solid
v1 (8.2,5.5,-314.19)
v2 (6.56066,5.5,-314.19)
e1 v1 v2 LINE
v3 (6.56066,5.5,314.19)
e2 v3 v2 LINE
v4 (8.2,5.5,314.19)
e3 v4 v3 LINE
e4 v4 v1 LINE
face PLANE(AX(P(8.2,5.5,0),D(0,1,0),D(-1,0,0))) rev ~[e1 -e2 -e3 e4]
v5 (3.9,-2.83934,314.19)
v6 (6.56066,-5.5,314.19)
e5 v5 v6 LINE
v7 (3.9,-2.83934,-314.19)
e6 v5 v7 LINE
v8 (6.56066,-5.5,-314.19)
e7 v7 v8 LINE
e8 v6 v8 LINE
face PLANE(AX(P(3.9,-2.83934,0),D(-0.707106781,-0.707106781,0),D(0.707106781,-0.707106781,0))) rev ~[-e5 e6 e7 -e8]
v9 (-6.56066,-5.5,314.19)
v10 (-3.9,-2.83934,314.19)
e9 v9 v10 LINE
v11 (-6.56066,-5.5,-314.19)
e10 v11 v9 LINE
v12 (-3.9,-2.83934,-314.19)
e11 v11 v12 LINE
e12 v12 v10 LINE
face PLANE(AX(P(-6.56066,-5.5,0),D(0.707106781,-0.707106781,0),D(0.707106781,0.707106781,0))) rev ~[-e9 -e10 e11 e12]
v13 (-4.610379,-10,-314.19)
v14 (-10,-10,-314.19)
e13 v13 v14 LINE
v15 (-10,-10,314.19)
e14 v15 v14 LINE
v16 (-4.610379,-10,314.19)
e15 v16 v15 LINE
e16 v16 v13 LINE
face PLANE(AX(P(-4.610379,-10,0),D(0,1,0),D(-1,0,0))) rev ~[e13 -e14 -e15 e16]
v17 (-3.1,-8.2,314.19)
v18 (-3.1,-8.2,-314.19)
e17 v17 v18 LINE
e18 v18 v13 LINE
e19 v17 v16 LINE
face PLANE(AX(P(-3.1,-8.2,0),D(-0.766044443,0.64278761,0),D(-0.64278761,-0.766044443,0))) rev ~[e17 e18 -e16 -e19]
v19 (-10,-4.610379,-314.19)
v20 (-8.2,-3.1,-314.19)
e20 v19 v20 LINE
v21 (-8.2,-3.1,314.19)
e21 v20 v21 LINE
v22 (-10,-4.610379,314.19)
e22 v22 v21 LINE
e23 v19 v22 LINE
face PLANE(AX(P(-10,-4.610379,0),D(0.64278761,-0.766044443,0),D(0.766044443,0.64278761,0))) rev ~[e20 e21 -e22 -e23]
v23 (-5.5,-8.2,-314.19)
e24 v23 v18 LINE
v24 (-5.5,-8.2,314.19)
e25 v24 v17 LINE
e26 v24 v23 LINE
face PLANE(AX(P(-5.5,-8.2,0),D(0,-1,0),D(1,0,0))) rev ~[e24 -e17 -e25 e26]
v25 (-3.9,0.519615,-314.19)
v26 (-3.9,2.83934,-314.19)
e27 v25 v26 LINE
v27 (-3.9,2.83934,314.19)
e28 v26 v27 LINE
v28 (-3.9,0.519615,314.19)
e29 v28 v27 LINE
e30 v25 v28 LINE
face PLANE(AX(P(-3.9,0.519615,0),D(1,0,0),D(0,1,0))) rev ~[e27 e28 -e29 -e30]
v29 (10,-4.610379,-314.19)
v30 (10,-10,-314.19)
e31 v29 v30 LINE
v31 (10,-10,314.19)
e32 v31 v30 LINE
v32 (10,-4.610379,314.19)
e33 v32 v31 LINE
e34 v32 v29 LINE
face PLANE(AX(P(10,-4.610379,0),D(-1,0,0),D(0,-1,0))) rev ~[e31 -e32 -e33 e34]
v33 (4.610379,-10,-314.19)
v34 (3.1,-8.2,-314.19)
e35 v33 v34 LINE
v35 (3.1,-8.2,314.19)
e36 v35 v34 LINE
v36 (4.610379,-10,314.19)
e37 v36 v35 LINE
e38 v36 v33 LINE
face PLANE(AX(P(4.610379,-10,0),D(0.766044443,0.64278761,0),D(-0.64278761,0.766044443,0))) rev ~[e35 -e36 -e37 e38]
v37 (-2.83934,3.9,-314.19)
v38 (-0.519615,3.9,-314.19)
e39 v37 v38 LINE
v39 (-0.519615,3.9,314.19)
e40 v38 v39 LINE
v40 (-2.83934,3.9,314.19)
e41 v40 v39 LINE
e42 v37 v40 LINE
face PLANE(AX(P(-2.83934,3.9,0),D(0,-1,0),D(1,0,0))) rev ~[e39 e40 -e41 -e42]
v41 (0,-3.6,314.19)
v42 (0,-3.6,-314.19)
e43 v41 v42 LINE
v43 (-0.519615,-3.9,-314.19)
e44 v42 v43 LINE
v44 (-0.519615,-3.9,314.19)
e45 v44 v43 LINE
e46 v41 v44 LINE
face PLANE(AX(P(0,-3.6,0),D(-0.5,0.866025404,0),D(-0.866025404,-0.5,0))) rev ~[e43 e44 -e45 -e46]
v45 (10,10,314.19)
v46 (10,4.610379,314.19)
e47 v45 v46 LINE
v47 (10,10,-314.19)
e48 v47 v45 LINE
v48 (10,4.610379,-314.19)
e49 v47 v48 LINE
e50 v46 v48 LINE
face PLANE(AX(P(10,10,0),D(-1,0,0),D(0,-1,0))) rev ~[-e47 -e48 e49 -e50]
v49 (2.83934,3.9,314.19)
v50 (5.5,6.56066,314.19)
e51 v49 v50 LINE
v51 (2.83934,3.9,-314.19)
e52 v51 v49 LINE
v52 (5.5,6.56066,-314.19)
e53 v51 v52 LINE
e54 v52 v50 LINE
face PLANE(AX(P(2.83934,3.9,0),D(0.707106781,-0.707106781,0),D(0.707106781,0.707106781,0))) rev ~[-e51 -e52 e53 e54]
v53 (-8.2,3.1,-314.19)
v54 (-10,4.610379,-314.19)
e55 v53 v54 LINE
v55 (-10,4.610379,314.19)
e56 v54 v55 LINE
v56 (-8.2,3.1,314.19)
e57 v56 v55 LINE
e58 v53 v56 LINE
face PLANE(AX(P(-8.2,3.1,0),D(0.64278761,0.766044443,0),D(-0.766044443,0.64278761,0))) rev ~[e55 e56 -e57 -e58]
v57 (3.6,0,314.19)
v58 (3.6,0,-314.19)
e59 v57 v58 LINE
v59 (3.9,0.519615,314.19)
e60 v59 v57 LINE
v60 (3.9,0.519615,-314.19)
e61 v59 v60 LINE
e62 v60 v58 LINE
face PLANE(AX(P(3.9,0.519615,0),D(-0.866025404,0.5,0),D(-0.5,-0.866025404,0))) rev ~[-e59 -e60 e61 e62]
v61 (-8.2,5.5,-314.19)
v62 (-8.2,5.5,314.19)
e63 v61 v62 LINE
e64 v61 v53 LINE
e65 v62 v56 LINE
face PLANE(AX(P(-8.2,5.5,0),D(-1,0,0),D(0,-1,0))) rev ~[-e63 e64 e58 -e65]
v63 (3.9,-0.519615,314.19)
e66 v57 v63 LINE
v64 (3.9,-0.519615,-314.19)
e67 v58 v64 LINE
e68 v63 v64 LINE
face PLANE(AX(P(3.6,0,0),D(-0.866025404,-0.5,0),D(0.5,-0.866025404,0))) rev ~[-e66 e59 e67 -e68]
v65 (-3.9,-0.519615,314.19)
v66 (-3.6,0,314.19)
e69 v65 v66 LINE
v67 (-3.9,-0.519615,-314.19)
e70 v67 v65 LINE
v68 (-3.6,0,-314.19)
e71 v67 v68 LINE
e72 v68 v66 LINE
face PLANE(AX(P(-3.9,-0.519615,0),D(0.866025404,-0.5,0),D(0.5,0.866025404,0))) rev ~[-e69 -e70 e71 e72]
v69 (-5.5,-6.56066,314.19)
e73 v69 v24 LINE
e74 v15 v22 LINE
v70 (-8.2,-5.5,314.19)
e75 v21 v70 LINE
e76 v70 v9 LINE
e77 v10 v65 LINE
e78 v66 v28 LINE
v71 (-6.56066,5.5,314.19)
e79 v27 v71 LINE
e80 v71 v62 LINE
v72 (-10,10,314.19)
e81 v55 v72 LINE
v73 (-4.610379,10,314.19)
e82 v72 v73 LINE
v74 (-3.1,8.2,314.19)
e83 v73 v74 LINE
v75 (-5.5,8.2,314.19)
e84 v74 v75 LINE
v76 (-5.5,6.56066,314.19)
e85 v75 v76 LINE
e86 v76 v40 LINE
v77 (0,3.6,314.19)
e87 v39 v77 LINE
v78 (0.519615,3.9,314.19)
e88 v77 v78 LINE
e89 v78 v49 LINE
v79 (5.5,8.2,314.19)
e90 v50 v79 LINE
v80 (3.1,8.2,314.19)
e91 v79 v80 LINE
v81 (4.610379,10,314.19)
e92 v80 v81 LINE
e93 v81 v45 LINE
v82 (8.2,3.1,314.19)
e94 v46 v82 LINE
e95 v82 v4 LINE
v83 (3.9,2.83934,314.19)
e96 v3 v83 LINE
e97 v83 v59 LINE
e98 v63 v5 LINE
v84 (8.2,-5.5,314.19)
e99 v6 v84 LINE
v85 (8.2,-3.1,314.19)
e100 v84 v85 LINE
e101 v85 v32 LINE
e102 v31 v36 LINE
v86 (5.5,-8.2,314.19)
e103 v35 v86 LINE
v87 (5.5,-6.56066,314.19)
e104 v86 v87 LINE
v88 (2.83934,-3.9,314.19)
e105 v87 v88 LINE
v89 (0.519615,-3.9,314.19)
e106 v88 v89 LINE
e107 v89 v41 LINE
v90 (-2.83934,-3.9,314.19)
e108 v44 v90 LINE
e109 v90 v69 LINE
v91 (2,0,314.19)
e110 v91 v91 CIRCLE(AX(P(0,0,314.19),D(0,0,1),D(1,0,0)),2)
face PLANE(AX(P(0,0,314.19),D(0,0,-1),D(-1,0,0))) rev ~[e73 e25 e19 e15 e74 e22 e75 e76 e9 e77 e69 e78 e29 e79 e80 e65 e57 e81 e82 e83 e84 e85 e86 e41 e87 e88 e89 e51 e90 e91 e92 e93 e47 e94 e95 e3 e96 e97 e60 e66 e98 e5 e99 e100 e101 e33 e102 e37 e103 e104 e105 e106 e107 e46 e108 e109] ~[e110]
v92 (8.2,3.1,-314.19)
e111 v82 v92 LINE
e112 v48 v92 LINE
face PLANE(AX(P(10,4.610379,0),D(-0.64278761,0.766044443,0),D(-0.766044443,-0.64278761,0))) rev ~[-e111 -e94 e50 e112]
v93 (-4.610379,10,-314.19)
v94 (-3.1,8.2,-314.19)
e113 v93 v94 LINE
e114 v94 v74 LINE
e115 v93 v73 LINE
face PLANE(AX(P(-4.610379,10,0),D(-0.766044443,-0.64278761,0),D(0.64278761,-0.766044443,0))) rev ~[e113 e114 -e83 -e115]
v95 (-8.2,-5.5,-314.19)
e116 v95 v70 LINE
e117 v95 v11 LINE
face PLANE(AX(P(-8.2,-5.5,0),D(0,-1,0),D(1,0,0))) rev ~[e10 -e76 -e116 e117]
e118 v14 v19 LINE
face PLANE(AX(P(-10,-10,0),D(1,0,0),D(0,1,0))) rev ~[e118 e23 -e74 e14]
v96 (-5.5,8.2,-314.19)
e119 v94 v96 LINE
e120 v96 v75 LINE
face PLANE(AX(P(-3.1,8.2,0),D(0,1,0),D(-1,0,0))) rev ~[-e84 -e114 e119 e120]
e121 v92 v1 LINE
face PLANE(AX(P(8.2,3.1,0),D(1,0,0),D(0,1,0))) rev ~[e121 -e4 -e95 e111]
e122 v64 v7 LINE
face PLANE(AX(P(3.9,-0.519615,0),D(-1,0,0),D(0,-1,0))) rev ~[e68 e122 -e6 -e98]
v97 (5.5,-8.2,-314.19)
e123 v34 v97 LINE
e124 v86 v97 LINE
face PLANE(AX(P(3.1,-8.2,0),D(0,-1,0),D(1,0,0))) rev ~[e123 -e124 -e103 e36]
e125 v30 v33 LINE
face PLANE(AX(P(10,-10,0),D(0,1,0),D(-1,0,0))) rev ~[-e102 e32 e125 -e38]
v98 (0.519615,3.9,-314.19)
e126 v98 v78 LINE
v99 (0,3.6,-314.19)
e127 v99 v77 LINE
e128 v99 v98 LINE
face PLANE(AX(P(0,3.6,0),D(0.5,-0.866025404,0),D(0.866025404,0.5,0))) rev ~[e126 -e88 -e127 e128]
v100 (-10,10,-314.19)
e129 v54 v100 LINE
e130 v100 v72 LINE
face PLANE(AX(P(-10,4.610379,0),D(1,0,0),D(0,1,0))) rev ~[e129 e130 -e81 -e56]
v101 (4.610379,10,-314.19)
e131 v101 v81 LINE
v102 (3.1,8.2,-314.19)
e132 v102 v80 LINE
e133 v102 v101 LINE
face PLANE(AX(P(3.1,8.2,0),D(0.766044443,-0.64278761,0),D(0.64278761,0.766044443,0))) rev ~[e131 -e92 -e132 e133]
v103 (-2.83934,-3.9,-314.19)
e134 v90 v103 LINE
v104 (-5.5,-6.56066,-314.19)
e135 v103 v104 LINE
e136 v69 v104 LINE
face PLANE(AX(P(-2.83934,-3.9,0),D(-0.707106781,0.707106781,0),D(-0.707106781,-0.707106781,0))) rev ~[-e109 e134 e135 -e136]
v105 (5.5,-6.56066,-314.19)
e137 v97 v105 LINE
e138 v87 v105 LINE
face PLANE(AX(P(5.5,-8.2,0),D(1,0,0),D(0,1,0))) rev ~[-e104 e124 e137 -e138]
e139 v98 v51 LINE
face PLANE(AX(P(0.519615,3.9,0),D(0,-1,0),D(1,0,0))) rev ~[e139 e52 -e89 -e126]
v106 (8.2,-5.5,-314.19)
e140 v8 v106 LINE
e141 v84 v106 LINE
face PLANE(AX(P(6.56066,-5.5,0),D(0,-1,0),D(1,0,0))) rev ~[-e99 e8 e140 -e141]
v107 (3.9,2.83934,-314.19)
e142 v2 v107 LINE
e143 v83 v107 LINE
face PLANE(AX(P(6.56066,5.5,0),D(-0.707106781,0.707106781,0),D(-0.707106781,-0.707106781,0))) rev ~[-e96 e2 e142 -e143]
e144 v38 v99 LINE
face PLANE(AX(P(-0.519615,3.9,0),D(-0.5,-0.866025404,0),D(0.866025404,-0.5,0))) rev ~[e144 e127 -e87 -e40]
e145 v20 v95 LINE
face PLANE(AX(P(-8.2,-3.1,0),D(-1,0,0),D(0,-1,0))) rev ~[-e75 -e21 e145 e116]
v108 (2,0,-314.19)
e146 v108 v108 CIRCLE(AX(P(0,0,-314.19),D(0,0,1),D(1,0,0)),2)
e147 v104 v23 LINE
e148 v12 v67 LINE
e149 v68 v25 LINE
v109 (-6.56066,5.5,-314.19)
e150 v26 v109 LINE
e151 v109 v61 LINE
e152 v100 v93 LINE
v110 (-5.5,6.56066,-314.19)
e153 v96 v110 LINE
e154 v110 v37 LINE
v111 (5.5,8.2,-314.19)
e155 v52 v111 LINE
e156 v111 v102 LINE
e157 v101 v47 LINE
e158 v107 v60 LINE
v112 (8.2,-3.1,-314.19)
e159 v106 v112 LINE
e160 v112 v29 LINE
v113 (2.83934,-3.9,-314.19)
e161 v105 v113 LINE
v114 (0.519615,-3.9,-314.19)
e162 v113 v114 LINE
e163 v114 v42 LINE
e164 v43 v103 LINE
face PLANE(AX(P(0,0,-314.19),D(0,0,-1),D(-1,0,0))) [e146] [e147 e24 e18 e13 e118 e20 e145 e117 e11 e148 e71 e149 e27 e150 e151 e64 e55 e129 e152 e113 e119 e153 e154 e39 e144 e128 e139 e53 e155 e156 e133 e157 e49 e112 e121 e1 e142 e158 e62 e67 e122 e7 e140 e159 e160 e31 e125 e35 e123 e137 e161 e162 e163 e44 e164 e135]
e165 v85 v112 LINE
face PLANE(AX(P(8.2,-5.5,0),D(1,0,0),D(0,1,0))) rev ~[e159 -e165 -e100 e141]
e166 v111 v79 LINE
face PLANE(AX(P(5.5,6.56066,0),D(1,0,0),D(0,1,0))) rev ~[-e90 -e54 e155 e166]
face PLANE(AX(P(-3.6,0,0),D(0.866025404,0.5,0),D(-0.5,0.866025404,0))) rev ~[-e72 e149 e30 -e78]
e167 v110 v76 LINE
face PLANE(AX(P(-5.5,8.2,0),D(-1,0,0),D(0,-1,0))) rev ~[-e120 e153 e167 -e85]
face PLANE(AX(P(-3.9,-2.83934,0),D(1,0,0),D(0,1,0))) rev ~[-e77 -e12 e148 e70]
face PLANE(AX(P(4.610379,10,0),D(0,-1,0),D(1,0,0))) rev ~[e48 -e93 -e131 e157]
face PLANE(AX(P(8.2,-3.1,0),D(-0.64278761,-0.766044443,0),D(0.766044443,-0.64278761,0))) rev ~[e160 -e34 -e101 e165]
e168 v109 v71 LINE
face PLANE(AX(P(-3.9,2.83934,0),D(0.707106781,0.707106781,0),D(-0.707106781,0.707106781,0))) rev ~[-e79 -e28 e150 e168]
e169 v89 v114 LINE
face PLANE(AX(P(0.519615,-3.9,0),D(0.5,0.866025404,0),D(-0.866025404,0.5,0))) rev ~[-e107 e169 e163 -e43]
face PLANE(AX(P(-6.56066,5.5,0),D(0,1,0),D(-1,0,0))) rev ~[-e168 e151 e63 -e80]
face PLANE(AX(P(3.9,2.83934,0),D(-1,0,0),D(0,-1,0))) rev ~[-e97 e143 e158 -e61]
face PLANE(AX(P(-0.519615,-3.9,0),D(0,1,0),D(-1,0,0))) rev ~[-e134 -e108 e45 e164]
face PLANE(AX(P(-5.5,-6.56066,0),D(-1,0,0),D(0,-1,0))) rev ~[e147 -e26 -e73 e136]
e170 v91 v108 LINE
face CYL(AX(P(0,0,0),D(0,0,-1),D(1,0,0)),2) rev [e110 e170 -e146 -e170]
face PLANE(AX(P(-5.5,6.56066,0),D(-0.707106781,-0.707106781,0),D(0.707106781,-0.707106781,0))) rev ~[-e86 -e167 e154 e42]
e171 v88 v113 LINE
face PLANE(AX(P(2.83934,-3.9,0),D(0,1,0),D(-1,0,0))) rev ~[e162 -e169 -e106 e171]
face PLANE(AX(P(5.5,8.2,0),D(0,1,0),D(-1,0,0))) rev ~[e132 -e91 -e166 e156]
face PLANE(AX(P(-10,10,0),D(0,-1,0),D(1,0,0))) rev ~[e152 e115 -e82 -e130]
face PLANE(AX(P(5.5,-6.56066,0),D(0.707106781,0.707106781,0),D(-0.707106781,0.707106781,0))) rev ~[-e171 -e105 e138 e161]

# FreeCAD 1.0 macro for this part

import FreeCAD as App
import Part
import Sketcher
Q = App.Units.Quantity


def add_polygon(sketch, points):
    """Adds a closed chain of lines whose ends are joined by coincident constraints."""
    first, n = sketch.GeometryCount, len(points)
    for a, b in zip(points, points[1:] + points[:1]):
        sketch.addGeometry(Part.LineSegment(App.Vector(*a, 0), App.Vector(*b, 0)), False)
    for i in range(n):
        sketch.addConstraint(Sketcher.Constraint("Coincident", first + i, 2, first + (i + 1) % n, 1))

doc = App.newDocument("Part")
body = doc.addObject("PartDesign::Body", "Body")

sketch1 = body.newObject("Sketcher::SketchObject", "Sketch")
sketch1.AttachmentSupport = (doc.getObject("XY_Plane"), [""])
sketch1.MapMode = "FlatFace"
add_polygon(sketch1, [(10, 4.6), (10, 10), (4.6, 10), (3.1, 8.2), (5.5, 8.2), (5.5, 6.6), (2.8, 3.9), (0.5, 3.9), (0, 3.6), (-0.5, 3.9), (-2.8, 3.9), (-5.5, 6.6), (-5.5, 8.2), (-3.1, 8.2), (-4.6, 10), (-10, 10), (-10, 4.6), (-8.2, 3.1), (-8.2, 5.5), (-6.6, 5.5), (-3.9, 2.8), (-3.9, 0.5), (-3.6, 0), (-3.9, -0.5), (-3.9, -2.8), (-6.6, -5.5), (-8.2, -5.5), (-8.2, -3.1), (-10, -4.6), (-10, -10), (-4.6, -10), (-3.1, -8.2), (-5.5, -8.2), (-5.5, -6.6), (-2.8, -3.9), (-0.5, -3.9), (0, -3.6), (0.5, -3.9), (2.8, -3.9), (5.5, -6.6), (5.5, -8.2), (3.1, -8.2), (4.6, -10), (10, -10), (10, -4.6), (8.2, -3.1), (8.2, -5.5), (6.6, -5.5), (3.9, -2.8), (3.9, -0.5), (3.6, 0), (3.9, 0.5), (3.9, 2.8), (6.6, 5.5), (8.2, 5.5), (8.2, 3.1)])
sketch1.addGeometry(Part.Circle(App.Vector(0, 0, 0), App.Vector(0, 0, 1), 2), False)
sketch1.addConstraint([
    Sketcher.Constraint("Vertical", 0),
    Sketcher.Constraint("Horizontal", 1),
    Sketcher.Constraint("Horizontal", 3),
    Sketcher.Constraint("Vertical", 4),
    Sketcher.Constraint("Horizontal", 6),
    Sketcher.Constraint("Horizontal", 9),
    Sketcher.Constraint("Vertical", 11),
    Sketcher.Constraint("Horizontal", 12),
    Sketcher.Constraint("Horizontal", 14),
    Sketcher.Constraint("Vertical", 15),
    Sketcher.Constraint("Vertical", 17),
    Sketcher.Constraint("Horizontal", 18),
    Sketcher.Constraint("Vertical", 20),
    Sketcher.Constraint("Vertical", 23),
    Sketcher.Constraint("Horizontal", 25),
    Sketcher.Constraint("Vertical", 26),
    Sketcher.Constraint("Vertical", 28),
    Sketcher.Constraint("Horizontal", 29),
    Sketcher.Constraint("Horizontal", 31),
    Sketcher.Constraint("Vertical", 32),
    Sketcher.Constraint("Horizontal", 34),
    Sketcher.Constraint("Horizontal", 37),
    Sketcher.Constraint("Vertical", 39),
    Sketcher.Constraint("Horizontal", 40),
    Sketcher.Constraint("Horizontal", 42),
    Sketcher.Constraint("Vertical", 43),
    Sketcher.Constraint("Vertical", 45),
    Sketcher.Constraint("Horizontal", 46),
    Sketcher.Constraint("Vertical", 48),
    Sketcher.Constraint("Vertical", 51),
    Sketcher.Constraint("Horizontal", 53),
    Sketcher.Constraint("Vertical", 54),
    Sketcher.Constraint("Coincident", 56, 3, -1, 1),
    Sketcher.Constraint("Symmetric", 0, 2, 28, 2, -1, 1),
    Sketcher.Constraint("Symmetric", 2, 2, 30, 2, -1, 1),
    Sketcher.Constraint("Symmetric", 4, 2, 32, 2, -1, 1),
    Sketcher.Constraint("Symmetric", 5, 2, 33, 2, -1, 1),
    Sketcher.Constraint("Symmetric", 7, 2, 35, 2, -1, 1),
    Sketcher.Constraint("Symmetric", 8, 2, 36, 2, -1, 1),
    Sketcher.Constraint("Symmetric", 10, 2, 38, 2, -1, 1),
    Sketcher.Constraint("Symmetric", 12, 2, 40, 2, -1, 1),
    Sketcher.Constraint("Symmetric", 13, 2, 41, 2, -1, 1),
    Sketcher.Constraint("Symmetric", 15, 2, 43, 2, -1, 1),
    Sketcher.Constraint("Symmetric", 16, 2, 44, 2, -1, 1),
    Sketcher.Constraint("Symmetric", 18, 2, 46, 2, -1, 1),
    Sketcher.Constraint("Symmetric", 19, 2, 47, 2, -1, 1),
    Sketcher.Constraint("Symmetric", 21, 2, 49, 2, -1, 1),
    Sketcher.Constraint("Symmetric", 22, 2, 50, 2, -1, 1),
    Sketcher.Constraint("Symmetric", 24, 2, 52, 2, -1, 1),
    Sketcher.Constraint("Symmetric", 26, 2, 54, 2, -1, 1),
    Sketcher.Constraint("Symmetric", 6, 2, 8, 2, -2),
    Sketcher.Constraint("Symmetric", 4, 2, 10, 2, -2),
    Sketcher.Constraint("Symmetric", 2, 2, 12, 2, -2),
    Sketcher.Constraint("Symmetric", 1, 2, 13, 2, -2),
    Sketcher.Constraint("Symmetric", 27, 2, 43, 2, -2),
    Sketcher.Constraint("Symmetric", 26, 2, 44, 2, -2),
    Sketcher.Constraint("Symmetric", 24, 2, 46, 2, -2),
    Sketcher.Constraint("Symmetric", 23, 2, 47, 2, -2),
    Sketcher.Constraint("PointOnObject", 7, 2, -2),
    Sketcher.Constraint("PointOnObject", 21, 2, -1),
    Sketcher.Constraint("Perpendicular", 5, 10),
    Sketcher.Constraint("Perpendicular", 2, 16),
    Sketcher.Constraint("Parallel", 10, 19),
    Sketcher.Constraint("Perpendicular", 7, 21),
    Sketcher.Constraint("Perpendicular", 8, 22),
    Sketcher.Constraint("Perpendicular", 19, 24),
    Sketcher.Constraint("Perpendicular", 16, 30),
    Sketcher.Constraint("Perpendicular", 21, 35),
    Sketcher.Constraint("Perpendicular", 33, 38),
    Sketcher.Constraint("Perpendicular", 35, 49),
    Sketcher.Constraint("Perpendicular", 47, 52),
    Sketcher.Constraint("Perpendicular", 41, 55),
    Sketcher.Constraint("Equal", 42, 0),
    Sketcher.Constraint("Equal", 53, 4),
    Sketcher.Constraint("Equal", 40, 17),
    Sketcher.Constraint("Equal", 37, 20),
    Sketcher.Constraint("Equal", 13, 16),
    Sketcher.Constraint("Equal", 10, 19),
    Sketcher.Constraint("Equal", 8, 21),
    Sketcher.Constraint("Diameter", 56, 4.0),
    Sketcher.Constraint("Angle", 2, Q("-130 deg")),
    Sketcher.Constraint("Angle", 7, Q("-150 deg")),
    Sketcher.Constraint("DistanceX", 3, 1, 3, 2, 2.4),
    Sketcher.Constraint("DistanceX", -1, 1, 0, 2, 10.0),
    Sketcher.Constraint("Distance", 7, 0.6),
    Sketcher.Constraint("DistanceX", -1, 1, 2, 2, 3.1),
    Sketcher.Constraint("DistanceY", -1, 1, 2, 2, 8.2),
    Sketcher.Constraint("DistanceY", -1, 1, 5, 2, 3.9),
    Sketcher.Constraint("DistanceX", 18, 1, 18, 2, 1.63934),
])
pad1 = body.newObject("PartDesign::Pad", "Pad")
pad1.Profile = sketch1
pad1.Length = 628.38
pad1.Midplane = True

doc.recompute()
